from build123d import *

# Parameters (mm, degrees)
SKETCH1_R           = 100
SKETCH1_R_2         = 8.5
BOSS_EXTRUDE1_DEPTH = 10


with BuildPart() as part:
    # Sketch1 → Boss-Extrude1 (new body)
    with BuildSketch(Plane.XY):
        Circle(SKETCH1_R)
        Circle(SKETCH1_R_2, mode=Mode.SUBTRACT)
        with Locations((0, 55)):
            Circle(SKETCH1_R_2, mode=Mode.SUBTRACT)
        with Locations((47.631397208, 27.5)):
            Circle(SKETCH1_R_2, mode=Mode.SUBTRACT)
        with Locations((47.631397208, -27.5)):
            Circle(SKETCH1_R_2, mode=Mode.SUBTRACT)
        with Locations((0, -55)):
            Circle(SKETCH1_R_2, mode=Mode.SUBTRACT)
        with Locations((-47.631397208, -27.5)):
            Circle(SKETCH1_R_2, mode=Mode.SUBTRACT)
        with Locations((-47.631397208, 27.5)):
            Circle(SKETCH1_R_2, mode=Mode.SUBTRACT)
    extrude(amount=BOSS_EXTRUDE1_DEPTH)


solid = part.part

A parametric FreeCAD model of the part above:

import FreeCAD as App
import Part
import Sketcher

V = App.Vector
Q = App.Units.Quantity

doc = App.newDocument("Part")
body = doc.addObject("PartDesign::Body", "Body")

sketch1 = doc.addObject("Sketcher::SketchObject", "Sketch")
body.addObject(sketch1)
sketch1.AttachmentSupport = (doc.XY_Plane, [""])
sketch1.MapMode = "FlatFace"
sketch1.addGeometry(Part.Circle(V(0, 0, 0), V(0, 0, 1), 100), False)
sketch1.addGeometry(Part.Circle(V(-48, -28, 0), V(0, 0, 1), 8), False)
sketch1.addGeometry(Part.Circle(V(0, -55, 0), V(0, 0, 1), 8), False)
sketch1.addGeometry(Part.Circle(V(48, -28, 0), V(0, 0, 1), 8), False)
sketch1.addGeometry(Part.Circle(V(-48, 28, 0), V(0, 0, 1), 8), False)
sketch1.addGeometry(Part.Circle(V(0, 0, 0), V(0, 0, 1), 8), False)
sketch1.addGeometry(Part.Circle(V(48, 28, 0), V(0, 0, 1), 8), False)
sketch1.addGeometry(Part.Circle(V(0, 55, 0), V(0, 0, 1), 8), False)
sketch1.addConstraint(Sketcher.Constraint("Coincident", 0, 3, -1, 1))
sketch1.addConstraint(Sketcher.Constraint("Coincident", 5, 3, -1, 1))
sketch1.addConstraint(Sketcher.Constraint("Equal", 1, 2))
sketch1.addConstraint(Sketcher.Constraint("Equal", 2, 3))
sketch1.addConstraint(Sketcher.Constraint("Equal", 3, 4))
sketch1.addConstraint(Sketcher.Constraint("Equal", 4, 5))
sketch1.addConstraint(Sketcher.Constraint("Equal", 5, 6))
sketch1.addConstraint(Sketcher.Constraint("Equal", 6, 7))
sketch1.addConstraint(Sketcher.Constraint("Symmetric", 3, 3, 4, 3, -1, 1))
sketch1.addConstraint(Sketcher.Constraint("Symmetric", 1, 3, 6, 3, -1, 1))
sketch1.addConstraint(Sketcher.Constraint("Symmetric", 2, 3, 7, 3, -1, 1))
sketch1.addConstraint(Sketcher.Constraint("Symmetric", 1, 3, 3, 3, -2))
sketch1.addConstraint(Sketcher.Constraint("PointOnObject", 2, 3, -2))
sketch1.addConstraint(Sketcher.Constraint("Diameter", 0, Q("200 mm")))
sketch1.addConstraint(Sketcher.Constraint("Diameter", 1, Q("17 mm")))
sketch1.addConstraint(Sketcher.Constraint("DistanceY", 2, 3, -1, 1, Q("55 mm")))
sketch1.addConstraint(Sketcher.Constraint("DistanceY", 1, 3, 4, 3, Q("55 mm")))
sketch1.addConstraint(Sketcher.Constraint("DistanceX", 1, 3, -1, 1, Q("47.631397 mm")))
pad1 = doc.addObject("PartDesign::Pad", "Pad")
body.addObject(pad1)
pad1.Profile = sketch1
pad1.Length = 10

doc.recompute()
